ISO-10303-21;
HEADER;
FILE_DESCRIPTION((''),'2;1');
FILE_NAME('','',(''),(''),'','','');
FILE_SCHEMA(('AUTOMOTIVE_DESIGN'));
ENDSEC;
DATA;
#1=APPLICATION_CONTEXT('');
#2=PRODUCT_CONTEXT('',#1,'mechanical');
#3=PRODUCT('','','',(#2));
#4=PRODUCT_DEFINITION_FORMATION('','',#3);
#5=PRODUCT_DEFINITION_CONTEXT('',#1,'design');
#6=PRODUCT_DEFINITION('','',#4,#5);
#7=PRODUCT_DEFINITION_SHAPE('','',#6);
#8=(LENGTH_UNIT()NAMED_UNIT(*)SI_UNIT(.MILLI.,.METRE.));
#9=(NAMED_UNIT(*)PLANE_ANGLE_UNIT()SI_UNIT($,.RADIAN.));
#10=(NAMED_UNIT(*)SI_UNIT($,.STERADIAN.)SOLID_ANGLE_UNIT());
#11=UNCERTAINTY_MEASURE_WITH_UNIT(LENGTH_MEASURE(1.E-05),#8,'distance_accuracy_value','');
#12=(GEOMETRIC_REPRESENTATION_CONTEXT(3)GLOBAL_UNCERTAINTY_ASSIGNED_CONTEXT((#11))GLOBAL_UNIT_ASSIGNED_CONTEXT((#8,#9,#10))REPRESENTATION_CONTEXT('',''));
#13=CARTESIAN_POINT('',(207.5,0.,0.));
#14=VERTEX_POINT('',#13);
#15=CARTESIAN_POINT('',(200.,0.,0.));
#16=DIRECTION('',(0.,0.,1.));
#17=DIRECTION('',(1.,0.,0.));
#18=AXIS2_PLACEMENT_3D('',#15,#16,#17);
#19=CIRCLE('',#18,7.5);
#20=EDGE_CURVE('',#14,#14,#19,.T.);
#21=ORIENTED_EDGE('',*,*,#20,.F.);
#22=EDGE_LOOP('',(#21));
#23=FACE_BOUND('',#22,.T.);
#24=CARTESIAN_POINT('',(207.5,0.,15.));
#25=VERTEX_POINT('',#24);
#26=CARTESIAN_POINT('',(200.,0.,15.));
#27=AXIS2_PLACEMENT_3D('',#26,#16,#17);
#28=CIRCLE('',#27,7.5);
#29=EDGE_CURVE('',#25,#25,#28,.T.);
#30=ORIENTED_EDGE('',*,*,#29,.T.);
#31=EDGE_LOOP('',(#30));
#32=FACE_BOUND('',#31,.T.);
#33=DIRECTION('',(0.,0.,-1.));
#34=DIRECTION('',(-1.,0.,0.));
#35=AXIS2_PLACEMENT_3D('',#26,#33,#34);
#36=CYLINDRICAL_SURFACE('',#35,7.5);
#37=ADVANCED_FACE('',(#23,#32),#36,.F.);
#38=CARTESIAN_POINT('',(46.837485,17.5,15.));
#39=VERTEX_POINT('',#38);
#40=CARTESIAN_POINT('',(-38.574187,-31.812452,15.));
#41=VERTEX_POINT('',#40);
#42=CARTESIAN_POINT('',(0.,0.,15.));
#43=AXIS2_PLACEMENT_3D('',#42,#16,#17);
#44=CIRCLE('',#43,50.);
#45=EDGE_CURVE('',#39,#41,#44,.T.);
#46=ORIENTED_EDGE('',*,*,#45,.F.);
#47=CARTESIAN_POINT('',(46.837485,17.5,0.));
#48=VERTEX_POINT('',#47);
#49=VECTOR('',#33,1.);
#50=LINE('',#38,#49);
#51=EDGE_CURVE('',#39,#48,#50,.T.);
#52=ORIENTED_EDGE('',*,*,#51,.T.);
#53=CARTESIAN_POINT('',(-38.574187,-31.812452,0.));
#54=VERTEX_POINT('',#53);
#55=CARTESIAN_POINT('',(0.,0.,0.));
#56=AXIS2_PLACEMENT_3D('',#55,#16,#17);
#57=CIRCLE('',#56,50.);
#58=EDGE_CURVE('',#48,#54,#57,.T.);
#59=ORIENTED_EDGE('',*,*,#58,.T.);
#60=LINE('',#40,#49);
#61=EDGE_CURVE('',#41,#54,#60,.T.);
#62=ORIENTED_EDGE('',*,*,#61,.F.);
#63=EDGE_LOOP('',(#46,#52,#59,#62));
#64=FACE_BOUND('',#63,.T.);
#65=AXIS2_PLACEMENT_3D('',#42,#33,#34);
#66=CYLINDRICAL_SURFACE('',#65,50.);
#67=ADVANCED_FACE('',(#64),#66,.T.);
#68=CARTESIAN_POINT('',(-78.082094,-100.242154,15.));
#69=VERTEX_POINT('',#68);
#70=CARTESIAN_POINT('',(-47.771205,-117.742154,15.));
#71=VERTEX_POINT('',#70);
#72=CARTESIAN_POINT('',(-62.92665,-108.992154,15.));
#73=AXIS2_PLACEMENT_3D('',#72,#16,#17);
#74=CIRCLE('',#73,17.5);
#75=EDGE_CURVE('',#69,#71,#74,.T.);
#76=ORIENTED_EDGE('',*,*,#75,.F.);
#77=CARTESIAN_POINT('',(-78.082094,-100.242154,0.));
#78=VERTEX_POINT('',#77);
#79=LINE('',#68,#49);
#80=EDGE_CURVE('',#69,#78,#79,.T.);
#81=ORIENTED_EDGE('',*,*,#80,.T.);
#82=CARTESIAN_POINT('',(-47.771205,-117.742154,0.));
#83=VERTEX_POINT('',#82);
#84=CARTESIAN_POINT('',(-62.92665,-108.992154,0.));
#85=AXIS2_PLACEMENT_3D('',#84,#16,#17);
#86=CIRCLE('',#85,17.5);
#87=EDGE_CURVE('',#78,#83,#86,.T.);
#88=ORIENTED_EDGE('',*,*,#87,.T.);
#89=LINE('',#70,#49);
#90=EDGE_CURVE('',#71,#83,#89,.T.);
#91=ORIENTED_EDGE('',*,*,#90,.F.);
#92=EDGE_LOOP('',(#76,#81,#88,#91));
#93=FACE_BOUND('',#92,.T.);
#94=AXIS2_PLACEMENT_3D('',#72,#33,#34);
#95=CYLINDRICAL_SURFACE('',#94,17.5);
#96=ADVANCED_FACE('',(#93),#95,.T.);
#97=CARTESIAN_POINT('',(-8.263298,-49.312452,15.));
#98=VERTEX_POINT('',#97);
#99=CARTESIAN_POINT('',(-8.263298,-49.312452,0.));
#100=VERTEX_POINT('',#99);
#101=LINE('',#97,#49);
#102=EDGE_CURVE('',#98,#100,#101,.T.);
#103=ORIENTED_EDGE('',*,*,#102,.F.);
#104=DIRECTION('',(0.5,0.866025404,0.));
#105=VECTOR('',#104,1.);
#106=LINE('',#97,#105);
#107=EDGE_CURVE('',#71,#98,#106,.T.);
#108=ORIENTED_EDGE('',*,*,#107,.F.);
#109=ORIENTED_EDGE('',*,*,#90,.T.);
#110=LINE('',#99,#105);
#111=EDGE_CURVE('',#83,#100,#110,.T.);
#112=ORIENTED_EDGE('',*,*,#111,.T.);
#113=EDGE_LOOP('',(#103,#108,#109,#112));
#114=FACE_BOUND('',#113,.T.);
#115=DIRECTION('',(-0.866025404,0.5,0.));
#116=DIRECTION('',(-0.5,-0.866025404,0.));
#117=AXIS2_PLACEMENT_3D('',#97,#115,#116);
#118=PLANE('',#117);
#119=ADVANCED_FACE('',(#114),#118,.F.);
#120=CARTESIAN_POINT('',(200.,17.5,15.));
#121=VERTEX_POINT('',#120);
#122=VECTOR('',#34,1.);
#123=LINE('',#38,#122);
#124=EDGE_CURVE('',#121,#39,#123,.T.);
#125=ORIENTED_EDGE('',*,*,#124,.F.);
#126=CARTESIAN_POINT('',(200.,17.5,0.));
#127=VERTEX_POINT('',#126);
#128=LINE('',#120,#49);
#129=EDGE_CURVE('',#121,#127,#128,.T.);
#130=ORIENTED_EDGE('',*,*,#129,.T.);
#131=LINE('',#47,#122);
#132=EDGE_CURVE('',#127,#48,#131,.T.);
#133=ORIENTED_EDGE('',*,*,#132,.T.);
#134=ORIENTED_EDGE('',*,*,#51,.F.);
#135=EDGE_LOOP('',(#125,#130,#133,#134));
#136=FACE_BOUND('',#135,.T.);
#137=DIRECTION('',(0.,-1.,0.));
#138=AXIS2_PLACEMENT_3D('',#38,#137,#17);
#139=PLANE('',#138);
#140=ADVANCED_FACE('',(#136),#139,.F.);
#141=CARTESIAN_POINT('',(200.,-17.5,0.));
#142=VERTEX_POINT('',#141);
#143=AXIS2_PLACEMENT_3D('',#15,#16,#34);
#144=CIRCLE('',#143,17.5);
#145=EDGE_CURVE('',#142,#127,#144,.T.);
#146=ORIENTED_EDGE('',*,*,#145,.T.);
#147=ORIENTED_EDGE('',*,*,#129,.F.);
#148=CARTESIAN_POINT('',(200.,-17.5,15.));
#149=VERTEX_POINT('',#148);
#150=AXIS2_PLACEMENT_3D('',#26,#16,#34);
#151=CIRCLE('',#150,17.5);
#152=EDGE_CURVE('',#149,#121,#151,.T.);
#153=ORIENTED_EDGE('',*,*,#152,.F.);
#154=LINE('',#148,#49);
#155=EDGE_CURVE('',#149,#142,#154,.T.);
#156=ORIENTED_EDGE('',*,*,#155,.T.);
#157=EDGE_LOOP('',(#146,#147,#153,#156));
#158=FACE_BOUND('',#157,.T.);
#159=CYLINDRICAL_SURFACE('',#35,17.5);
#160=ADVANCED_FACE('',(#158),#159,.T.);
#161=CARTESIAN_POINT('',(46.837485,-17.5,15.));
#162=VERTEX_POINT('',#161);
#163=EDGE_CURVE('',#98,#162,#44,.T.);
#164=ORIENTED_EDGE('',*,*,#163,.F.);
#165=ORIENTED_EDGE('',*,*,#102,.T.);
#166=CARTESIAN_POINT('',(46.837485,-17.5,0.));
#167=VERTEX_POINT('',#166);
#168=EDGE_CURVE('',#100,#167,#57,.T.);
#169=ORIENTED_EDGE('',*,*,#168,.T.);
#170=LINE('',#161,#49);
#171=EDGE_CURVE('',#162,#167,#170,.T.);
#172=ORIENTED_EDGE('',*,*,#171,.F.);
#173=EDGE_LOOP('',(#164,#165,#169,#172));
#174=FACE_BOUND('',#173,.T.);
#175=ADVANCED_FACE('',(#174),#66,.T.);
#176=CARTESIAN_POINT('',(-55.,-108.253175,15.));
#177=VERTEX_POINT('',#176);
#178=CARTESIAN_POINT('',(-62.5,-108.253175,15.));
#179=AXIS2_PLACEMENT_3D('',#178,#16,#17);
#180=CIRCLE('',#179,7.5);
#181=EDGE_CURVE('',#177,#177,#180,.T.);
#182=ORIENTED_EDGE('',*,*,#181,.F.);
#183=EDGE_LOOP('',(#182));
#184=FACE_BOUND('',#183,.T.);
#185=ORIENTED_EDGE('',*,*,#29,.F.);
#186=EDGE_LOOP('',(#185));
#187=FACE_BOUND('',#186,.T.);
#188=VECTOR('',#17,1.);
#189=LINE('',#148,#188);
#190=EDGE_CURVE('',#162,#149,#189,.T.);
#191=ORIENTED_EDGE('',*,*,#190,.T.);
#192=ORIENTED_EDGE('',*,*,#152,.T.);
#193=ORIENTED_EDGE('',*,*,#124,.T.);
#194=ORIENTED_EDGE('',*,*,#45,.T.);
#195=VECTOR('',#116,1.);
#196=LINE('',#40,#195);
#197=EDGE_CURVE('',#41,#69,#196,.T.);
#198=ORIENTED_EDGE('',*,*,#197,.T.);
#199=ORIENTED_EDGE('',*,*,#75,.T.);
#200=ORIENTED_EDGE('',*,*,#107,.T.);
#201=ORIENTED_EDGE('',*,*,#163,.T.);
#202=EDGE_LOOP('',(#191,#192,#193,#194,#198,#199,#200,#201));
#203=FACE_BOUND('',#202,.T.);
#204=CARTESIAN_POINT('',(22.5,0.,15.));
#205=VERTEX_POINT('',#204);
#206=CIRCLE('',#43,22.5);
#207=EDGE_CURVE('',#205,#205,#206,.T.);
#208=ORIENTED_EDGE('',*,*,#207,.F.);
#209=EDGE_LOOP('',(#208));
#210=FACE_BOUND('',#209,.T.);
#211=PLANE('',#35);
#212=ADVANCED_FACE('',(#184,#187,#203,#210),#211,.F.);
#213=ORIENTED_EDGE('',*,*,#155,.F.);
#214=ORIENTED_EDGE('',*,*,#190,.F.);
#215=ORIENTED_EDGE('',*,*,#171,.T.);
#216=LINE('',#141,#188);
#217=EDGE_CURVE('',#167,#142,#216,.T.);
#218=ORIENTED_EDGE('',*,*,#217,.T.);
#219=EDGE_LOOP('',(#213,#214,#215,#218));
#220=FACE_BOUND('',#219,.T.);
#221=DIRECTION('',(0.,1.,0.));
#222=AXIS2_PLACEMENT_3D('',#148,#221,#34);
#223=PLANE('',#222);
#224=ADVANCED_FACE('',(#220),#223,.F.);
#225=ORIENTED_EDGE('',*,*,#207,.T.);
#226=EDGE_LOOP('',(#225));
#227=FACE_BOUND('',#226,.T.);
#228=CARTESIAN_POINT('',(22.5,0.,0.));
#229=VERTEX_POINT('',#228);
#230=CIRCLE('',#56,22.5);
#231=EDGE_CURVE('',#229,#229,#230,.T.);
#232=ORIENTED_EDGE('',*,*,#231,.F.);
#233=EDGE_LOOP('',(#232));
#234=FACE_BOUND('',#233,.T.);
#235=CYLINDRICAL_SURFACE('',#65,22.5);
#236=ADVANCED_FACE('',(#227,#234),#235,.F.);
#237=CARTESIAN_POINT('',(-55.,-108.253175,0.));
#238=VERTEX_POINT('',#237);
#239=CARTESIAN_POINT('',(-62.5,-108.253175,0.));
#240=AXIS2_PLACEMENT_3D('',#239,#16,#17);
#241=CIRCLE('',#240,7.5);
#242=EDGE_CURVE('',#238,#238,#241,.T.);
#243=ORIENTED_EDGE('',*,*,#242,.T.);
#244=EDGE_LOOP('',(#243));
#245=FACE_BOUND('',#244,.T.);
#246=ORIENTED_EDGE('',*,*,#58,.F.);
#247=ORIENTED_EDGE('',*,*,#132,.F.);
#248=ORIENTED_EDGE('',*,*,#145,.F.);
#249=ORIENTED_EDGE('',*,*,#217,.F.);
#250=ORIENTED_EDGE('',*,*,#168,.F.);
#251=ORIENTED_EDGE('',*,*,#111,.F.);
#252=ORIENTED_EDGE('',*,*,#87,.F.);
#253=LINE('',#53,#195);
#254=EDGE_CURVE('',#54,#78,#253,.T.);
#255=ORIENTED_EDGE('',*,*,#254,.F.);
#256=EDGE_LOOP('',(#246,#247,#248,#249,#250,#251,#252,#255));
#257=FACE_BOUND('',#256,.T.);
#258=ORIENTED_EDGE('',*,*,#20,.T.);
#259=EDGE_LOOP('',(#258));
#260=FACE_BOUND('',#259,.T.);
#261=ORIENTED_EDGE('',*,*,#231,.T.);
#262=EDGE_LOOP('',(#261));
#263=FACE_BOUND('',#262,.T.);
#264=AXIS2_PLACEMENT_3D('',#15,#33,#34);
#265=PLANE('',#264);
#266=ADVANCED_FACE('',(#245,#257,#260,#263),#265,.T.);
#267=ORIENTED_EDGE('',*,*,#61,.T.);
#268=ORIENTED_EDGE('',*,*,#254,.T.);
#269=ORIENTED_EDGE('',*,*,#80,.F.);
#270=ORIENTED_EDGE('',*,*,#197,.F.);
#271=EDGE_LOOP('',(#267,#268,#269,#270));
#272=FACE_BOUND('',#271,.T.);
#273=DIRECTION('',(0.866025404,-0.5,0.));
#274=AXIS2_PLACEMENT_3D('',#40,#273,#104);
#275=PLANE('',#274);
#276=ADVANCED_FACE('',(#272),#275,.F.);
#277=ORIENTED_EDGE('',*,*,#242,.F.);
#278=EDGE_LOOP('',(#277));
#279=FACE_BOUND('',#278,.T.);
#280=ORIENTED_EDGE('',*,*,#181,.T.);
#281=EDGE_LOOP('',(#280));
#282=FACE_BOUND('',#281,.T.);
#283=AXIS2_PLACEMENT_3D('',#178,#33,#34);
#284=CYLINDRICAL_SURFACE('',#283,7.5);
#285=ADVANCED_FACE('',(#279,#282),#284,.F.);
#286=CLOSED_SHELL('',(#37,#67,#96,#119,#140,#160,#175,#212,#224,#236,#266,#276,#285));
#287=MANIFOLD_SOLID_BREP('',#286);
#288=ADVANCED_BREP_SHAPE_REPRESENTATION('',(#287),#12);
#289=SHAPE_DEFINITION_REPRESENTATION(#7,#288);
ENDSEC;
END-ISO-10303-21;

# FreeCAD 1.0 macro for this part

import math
import FreeCAD as App
import Part
import Sketcher

V = App.Vector
Q = App.Units.Quantity

doc = App.newDocument("Part")
body = doc.addObject("PartDesign::Body", "Body")

sketch1 = body.newObject("Sketcher::SketchObject", "Sketch")
sketch1.AttachmentSupport = (doc.getObject("XY_Plane"), [""])
sketch1.MapMode = "FlatFace"
sketch1.addGeometry(Part.LineSegment(V(-48, -118, 0), V(-8, -49, 0)), False)
sketch1.addGeometry(Part.ArcOfCircle(Part.Circle(V(0, 0, 0), V(0, 0, 1), 50), math.radians(-100), math.radians(-20)), False)
sketch1.addGeometry(Part.LineSegment(V(47, -18, 0), V(200, -18, 0)), False)
sketch1.addGeometry(Part.ArcOfCircle(Part.Circle(V(200, 0, 0), V(0, 0, 1), 18), math.radians(-90), math.radians(90)), False)
sketch1.addGeometry(Part.LineSegment(V(200, 18, 0), V(47, 18, 0)), False)
sketch1.addGeometry(Part.ArcOfCircle(Part.Circle(V(0, 0, 0), V(0, 0, 1), 50), math.radians(20), math.radians(220)), False)
sketch1.addGeometry(Part.LineSegment(V(-39, -32, 0), V(-78, -100, 0)), False)
sketch1.addGeometry(Part.ArcOfCircle(Part.Circle(V(-63, -109, 0), V(0, 0, 1), 18), math.radians(150), math.radians(330)), False)
sketch1.addGeometry(Part.Circle(V(-62, -108, 0), V(0, 0, 1), 8), False)
sketch1.addGeometry(Part.Circle(V(200, 0, 0), V(0, 0, 1), 8), False)
sketch1.addGeometry(Part.Circle(V(0, 0, 0), V(0, 0, 1), 22), False)
sketch1.addConstraint(Sketcher.Constraint("Coincident", 0, 2, 1, 1))
sketch1.addConstraint(Sketcher.Constraint("Coincident", 1, 2, 2, 1))
sketch1.addConstraint(Sketcher.Constraint("Tangent", 2, 2, 3, 1))
sketch1.addConstraint(Sketcher.Constraint("Tangent", 3, 2, 4, 1))
sketch1.addConstraint(Sketcher.Constraint("Coincident", 4, 2, 5, 1))
sketch1.addConstraint(Sketcher.Constraint("Coincident", 5, 2, 6, 1))
sketch1.addConstraint(Sketcher.Constraint("Tangent", 6, 2, 7, 1))
sketch1.addConstraint(Sketcher.Constraint("Tangent", 7, 2, 0, 1))
sketch1.addConstraint(Sketcher.Constraint("Horizontal", 2))
sketch1.addConstraint(Sketcher.Constraint("Horizontal", 4))
sketch1.addConstraint(Sketcher.Constraint("Coincident", 1, 3, -1, 1))
sketch1.addConstraint(Sketcher.Constraint("Coincident", 5, 3, -1, 1))
sketch1.addConstraint(Sketcher.Constraint("Coincident", 10, 3, -1, 1))
sketch1.addConstraint(Sketcher.Constraint("Coincident", 9, 3, 3, 3))
sketch1.addConstraint(Sketcher.Constraint("Equal", 1, 5))
sketch1.addConstraint(Sketcher.Constraint("Equal", 3, 7))
sketch1.addConstraint(Sketcher.Constraint("Equal", 8, 9))
sketch1.addConstraint(Sketcher.Constraint("PointOnObject", 3, 3, -1))
sketch1.addConstraint(Sketcher.Constraint("Parallel", 0, 6))
sketch1.addConstraint(Sketcher.Constraint("Equal", 0, 6))
sketch1.addConstraint(Sketcher.Constraint("Diameter", 8, Q("15 mm")))
sketch1.addConstraint(Sketcher.Constraint("Diameter", 10, Q("45 mm")))
sketch1.addConstraint(Sketcher.Constraint("Radius", 1, Q("50 mm")))
sketch1.addConstraint(Sketcher.Constraint("Radius", 3, Q("17.5 mm")))
sketch1.addConstraint(Sketcher.Constraint("Angle", 0, Q("60 deg")))
sketch1.addConstraint(Sketcher.Constraint("DistanceX", -1, 1, 3, 3, Q("200 mm")))
sketch1.addConstraint(Sketcher.Constraint("DistanceX", 8, 3, -1, 1, Q("62.5 mm")))
sketch1.addConstraint(Sketcher.Constraint("DistanceX", 7, 3, -1, 1, Q("62.92665 mm")))
sketch1.addConstraint(Sketcher.Constraint("DistanceY", 7, 3, 8, 3, Q("0.738979 mm")))
pad1 = body.newObject("PartDesign::Pad", "Pad")
pad1.Profile = sketch1
pad1.Length = 15

doc.recompute()
